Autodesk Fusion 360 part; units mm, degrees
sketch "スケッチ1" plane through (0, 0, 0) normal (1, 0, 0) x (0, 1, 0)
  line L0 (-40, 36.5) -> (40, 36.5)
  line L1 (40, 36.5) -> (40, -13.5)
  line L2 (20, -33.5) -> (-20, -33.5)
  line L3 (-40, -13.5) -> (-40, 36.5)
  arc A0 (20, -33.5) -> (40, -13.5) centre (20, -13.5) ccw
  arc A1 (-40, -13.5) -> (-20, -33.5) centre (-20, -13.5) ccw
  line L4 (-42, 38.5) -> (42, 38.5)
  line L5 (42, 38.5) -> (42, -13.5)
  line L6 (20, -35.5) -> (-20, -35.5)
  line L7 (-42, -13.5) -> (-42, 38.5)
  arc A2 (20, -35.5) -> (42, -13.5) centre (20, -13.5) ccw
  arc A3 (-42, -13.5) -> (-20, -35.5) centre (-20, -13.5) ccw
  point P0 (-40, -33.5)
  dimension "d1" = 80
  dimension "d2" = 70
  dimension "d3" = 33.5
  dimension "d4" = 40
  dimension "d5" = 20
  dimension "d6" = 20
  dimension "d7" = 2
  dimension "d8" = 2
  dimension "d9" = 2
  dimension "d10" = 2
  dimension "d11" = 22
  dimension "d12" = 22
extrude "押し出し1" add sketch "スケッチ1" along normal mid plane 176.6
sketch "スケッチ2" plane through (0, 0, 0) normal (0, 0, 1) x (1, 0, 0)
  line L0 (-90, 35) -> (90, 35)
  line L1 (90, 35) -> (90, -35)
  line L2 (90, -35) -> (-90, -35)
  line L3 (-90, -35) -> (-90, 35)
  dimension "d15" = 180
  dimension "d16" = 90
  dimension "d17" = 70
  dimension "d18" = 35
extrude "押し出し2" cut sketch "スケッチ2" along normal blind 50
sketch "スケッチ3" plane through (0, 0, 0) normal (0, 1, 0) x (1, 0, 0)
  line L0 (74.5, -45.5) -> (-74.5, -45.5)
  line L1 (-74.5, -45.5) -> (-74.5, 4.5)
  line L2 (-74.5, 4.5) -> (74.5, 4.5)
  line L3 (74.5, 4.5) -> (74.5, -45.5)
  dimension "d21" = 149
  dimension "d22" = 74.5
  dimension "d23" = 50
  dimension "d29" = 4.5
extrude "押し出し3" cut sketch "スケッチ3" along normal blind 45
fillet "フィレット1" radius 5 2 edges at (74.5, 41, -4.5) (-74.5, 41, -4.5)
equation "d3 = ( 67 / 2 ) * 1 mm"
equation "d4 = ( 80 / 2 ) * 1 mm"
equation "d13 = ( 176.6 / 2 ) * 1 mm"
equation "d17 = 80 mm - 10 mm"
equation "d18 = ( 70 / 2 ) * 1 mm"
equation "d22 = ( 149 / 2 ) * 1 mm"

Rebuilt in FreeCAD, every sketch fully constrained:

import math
import FreeCAD as App
import Part
import Sketcher

V = App.Vector
Q = App.Units.Quantity


def edges_at(feature, points):
    """Names of the edges that pass closest to the given points."""
    edges = feature.Shape.Edges
    near = lambda p: min(range(len(edges)), key=lambda i: edges[i].distToShape(Part.Vertex(*p))[0])
    return sorted({f"Edge{near(p) + 1}" for p in points})

doc = App.newDocument("Part")
body = doc.addObject("PartDesign::Body", "Body")

# Sketch on YZ plane
sketch1 = body.newObject("Sketcher::SketchObject", "Sketch")
sketch1.AttachmentSupport = (doc.getObject("YZ_Plane"), [""])
sketch1.MapMode = "FlatFace"
sketch1.addGeometry([
    Part.LineSegment(V(42, 38, 0), V(-42, 38, 0)),  # 0
    Part.LineSegment(V(-42, 38, 0), V(-42, -14, 0)),  # 1
    Part.ArcOfCircle(Part.Circle(V(-20, -14, 0), V(0, 0, 1), 22), math.radians(180), math.radians(270)),  # 2
    Part.LineSegment(V(-20, -36, 0), V(20, -36, 0)),  # 3
    Part.ArcOfCircle(Part.Circle(V(20, -14, 0), V(0, 0, 1), 22), math.radians(-90), math.radians(0)),  # 4
    Part.LineSegment(V(42, -14, 0), V(42, 38, 0)),  # 5
    Part.LineSegment(V(-40, -14, 0), V(-40, 36, 0)),  # 6
    Part.LineSegment(V(-40, 36, 0), V(40, 36, 0)),  # 7
    Part.LineSegment(V(40, 36, 0), V(40, -14, 0)),  # 8
    Part.ArcOfCircle(Part.Circle(V(20, -14, 0), V(0, 0, 1), 20), math.radians(-90), math.radians(0)),  # 9
    Part.LineSegment(V(20, -34, 0), V(-20, -34, 0)),  # 10
    Part.ArcOfCircle(Part.Circle(V(-20, -14, 0), V(0, 0, 1), 20), math.radians(180), math.radians(270)),  # 11
], False)
sketch1.addConstraint([
    Sketcher.Constraint("Coincident", 0, 2, 1, 1),
    Sketcher.Constraint("Tangent", 1, 2, 2, 1),
    Sketcher.Constraint("Tangent", 2, 2, 3, 1),
    Sketcher.Constraint("Tangent", 3, 2, 4, 1),
    Sketcher.Constraint("Tangent", 4, 2, 5, 1),
    Sketcher.Constraint("Coincident", 5, 2, 0, 1),
    Sketcher.Constraint("Coincident", 6, 2, 7, 1),
    Sketcher.Constraint("Coincident", 7, 2, 8, 1),
    Sketcher.Constraint("Tangent", 8, 2, 9, 2),
    Sketcher.Constraint("Tangent", 9, 1, 10, 1),
    Sketcher.Constraint("Tangent", 10, 2, 11, 2),
    Sketcher.Constraint("Tangent", 11, 1, 6, 1),
    Sketcher.Constraint("Horizontal", 0),
    Sketcher.Constraint("Vertical", 1),
    Sketcher.Constraint("Horizontal", 3),
    Sketcher.Constraint("Vertical", 5),
    Sketcher.Constraint("Vertical", 6),
    Sketcher.Constraint("Horizontal", 7),
    Sketcher.Constraint("Vertical", 8),
    Sketcher.Constraint("Horizontal", 10),
    Sketcher.Constraint("Coincident", 9, 3, 4, 3),
    Sketcher.Constraint("Coincident", 11, 3, 2, 3),
    Sketcher.Constraint("Equal", 2, 4),
    Sketcher.Constraint("Radius", 2, Q("22 mm")),
    Sketcher.Constraint("Radius", 9, Q("20 mm")),
    Sketcher.Constraint("DistanceX", 3, 1, 3, 2, Q("40 mm")),
    Sketcher.Constraint("DistanceX", 2, 3, -1, 1, Q("20 mm")),
    Sketcher.Constraint("DistanceY", 6, 2, 0, 2, Q("2 mm")),
    Sketcher.Constraint("DistanceY", 9, 1, -1, 1, Q("33.5 mm")),
    Sketcher.Constraint("DistanceY", 1, 2, 1, 1, Q("52 mm")),
])
pad1 = body.newObject("PartDesign::Pad", "Pad")
pad1.Profile = sketch1
pad1.Length = 176.6
pad1.Midplane = True

# Sketch on XY plane
sketch2 = body.newObject("Sketcher::SketchObject", "Sketch001")
sketch2.AttachmentSupport = (doc.getObject("XY_Plane"), [""])
sketch2.MapMode = "FlatFace"
sketch2.addGeometry([
    Part.LineSegment(V(90, 35, 0), V(-90, 35, 0)),
    Part.LineSegment(V(-90, 35, 0), V(-90, -35, 0)),
    Part.LineSegment(V(-90, -35, 0), V(90, -35, 0)),
    Part.LineSegment(V(90, -35, 0), V(90, 35, 0)),
], False)
sketch2.addConstraint([
    Sketcher.Constraint("Coincident", 0, 2, 1, 1),
    Sketcher.Constraint("Coincident", 1, 2, 2, 1),
    Sketcher.Constraint("Coincident", 2, 2, 3, 1),
    Sketcher.Constraint("Coincident", 3, 2, 0, 1),
    Sketcher.Constraint("Horizontal", 0),
    Sketcher.Constraint("Vertical", 1),
    Sketcher.Constraint("Horizontal", 2),
    Sketcher.Constraint("Vertical", 3),
    Sketcher.Constraint("Symmetric", 0, 2, 2, 2, -1, 1),
    Sketcher.Constraint("DistanceX", 0, 2, 0, 1, Q("180 mm")),
    Sketcher.Constraint("DistanceY", 1, 2, 1, 1, Q("70 mm")),
])
pocket1 = body.newObject("PartDesign::Pocket", "Pocket")
pocket1.Profile = sketch2
pocket1.Length = 50
pocket1.Reversed = True

# Sketch on XZ plane
sketch3 = body.newObject("Sketcher::SketchObject", "Sketch002")
sketch3.AttachmentSupport = (doc.getObject("XZ_Plane"), [""])
sketch3.MapMode = "FlatFace"
sketch3.addGeometry([
    Part.LineSegment(V(-74, 46, 0), V(74, 46, 0)),
    Part.LineSegment(V(74, 46, 0), V(74, -4, 0)),
    Part.LineSegment(V(74, -4, 0), V(-74, -4, 0)),
    Part.LineSegment(V(-74, -4, 0), V(-74, 46, 0)),
], False)
sketch3.addConstraint([
    Sketcher.Constraint("Coincident", 0, 2, 1, 1),
    Sketcher.Constraint("Coincident", 1, 2, 2, 1),
    Sketcher.Constraint("Coincident", 2, 2, 3, 1),
    Sketcher.Constraint("Coincident", 3, 2, 0, 1),
    Sketcher.Constraint("Horizontal", 0),
    Sketcher.Constraint("Vertical", 1),
    Sketcher.Constraint("Horizontal", 2),
    Sketcher.Constraint("Vertical", 3),
    Sketcher.Constraint("DistanceX", 0, 1, 0, 2, Q("149 mm")),
    Sketcher.Constraint("DistanceY", 1, 2, 1, 1, Q("50 mm")),
    Sketcher.Constraint("DistanceX", -1, 1, 0, 2, Q("74.5 mm")),
    Sketcher.Constraint("DistanceY", 1, 2, -1, 1, Q("4.5 mm")),
])
pocket2 = body.newObject("PartDesign::Pocket", "Pocket001")
pocket2.Profile = sketch3
pocket2.Length = 45
doc.recompute()

fillet = body.newObject("PartDesign::Fillet", "Fillet")
fillet.Base = (pocket2, edges_at(pocket2, [(74.5, 41, -4.5), (-74.5, 41, -4.5)]))
fillet.Radius = 5

doc.recompute()
